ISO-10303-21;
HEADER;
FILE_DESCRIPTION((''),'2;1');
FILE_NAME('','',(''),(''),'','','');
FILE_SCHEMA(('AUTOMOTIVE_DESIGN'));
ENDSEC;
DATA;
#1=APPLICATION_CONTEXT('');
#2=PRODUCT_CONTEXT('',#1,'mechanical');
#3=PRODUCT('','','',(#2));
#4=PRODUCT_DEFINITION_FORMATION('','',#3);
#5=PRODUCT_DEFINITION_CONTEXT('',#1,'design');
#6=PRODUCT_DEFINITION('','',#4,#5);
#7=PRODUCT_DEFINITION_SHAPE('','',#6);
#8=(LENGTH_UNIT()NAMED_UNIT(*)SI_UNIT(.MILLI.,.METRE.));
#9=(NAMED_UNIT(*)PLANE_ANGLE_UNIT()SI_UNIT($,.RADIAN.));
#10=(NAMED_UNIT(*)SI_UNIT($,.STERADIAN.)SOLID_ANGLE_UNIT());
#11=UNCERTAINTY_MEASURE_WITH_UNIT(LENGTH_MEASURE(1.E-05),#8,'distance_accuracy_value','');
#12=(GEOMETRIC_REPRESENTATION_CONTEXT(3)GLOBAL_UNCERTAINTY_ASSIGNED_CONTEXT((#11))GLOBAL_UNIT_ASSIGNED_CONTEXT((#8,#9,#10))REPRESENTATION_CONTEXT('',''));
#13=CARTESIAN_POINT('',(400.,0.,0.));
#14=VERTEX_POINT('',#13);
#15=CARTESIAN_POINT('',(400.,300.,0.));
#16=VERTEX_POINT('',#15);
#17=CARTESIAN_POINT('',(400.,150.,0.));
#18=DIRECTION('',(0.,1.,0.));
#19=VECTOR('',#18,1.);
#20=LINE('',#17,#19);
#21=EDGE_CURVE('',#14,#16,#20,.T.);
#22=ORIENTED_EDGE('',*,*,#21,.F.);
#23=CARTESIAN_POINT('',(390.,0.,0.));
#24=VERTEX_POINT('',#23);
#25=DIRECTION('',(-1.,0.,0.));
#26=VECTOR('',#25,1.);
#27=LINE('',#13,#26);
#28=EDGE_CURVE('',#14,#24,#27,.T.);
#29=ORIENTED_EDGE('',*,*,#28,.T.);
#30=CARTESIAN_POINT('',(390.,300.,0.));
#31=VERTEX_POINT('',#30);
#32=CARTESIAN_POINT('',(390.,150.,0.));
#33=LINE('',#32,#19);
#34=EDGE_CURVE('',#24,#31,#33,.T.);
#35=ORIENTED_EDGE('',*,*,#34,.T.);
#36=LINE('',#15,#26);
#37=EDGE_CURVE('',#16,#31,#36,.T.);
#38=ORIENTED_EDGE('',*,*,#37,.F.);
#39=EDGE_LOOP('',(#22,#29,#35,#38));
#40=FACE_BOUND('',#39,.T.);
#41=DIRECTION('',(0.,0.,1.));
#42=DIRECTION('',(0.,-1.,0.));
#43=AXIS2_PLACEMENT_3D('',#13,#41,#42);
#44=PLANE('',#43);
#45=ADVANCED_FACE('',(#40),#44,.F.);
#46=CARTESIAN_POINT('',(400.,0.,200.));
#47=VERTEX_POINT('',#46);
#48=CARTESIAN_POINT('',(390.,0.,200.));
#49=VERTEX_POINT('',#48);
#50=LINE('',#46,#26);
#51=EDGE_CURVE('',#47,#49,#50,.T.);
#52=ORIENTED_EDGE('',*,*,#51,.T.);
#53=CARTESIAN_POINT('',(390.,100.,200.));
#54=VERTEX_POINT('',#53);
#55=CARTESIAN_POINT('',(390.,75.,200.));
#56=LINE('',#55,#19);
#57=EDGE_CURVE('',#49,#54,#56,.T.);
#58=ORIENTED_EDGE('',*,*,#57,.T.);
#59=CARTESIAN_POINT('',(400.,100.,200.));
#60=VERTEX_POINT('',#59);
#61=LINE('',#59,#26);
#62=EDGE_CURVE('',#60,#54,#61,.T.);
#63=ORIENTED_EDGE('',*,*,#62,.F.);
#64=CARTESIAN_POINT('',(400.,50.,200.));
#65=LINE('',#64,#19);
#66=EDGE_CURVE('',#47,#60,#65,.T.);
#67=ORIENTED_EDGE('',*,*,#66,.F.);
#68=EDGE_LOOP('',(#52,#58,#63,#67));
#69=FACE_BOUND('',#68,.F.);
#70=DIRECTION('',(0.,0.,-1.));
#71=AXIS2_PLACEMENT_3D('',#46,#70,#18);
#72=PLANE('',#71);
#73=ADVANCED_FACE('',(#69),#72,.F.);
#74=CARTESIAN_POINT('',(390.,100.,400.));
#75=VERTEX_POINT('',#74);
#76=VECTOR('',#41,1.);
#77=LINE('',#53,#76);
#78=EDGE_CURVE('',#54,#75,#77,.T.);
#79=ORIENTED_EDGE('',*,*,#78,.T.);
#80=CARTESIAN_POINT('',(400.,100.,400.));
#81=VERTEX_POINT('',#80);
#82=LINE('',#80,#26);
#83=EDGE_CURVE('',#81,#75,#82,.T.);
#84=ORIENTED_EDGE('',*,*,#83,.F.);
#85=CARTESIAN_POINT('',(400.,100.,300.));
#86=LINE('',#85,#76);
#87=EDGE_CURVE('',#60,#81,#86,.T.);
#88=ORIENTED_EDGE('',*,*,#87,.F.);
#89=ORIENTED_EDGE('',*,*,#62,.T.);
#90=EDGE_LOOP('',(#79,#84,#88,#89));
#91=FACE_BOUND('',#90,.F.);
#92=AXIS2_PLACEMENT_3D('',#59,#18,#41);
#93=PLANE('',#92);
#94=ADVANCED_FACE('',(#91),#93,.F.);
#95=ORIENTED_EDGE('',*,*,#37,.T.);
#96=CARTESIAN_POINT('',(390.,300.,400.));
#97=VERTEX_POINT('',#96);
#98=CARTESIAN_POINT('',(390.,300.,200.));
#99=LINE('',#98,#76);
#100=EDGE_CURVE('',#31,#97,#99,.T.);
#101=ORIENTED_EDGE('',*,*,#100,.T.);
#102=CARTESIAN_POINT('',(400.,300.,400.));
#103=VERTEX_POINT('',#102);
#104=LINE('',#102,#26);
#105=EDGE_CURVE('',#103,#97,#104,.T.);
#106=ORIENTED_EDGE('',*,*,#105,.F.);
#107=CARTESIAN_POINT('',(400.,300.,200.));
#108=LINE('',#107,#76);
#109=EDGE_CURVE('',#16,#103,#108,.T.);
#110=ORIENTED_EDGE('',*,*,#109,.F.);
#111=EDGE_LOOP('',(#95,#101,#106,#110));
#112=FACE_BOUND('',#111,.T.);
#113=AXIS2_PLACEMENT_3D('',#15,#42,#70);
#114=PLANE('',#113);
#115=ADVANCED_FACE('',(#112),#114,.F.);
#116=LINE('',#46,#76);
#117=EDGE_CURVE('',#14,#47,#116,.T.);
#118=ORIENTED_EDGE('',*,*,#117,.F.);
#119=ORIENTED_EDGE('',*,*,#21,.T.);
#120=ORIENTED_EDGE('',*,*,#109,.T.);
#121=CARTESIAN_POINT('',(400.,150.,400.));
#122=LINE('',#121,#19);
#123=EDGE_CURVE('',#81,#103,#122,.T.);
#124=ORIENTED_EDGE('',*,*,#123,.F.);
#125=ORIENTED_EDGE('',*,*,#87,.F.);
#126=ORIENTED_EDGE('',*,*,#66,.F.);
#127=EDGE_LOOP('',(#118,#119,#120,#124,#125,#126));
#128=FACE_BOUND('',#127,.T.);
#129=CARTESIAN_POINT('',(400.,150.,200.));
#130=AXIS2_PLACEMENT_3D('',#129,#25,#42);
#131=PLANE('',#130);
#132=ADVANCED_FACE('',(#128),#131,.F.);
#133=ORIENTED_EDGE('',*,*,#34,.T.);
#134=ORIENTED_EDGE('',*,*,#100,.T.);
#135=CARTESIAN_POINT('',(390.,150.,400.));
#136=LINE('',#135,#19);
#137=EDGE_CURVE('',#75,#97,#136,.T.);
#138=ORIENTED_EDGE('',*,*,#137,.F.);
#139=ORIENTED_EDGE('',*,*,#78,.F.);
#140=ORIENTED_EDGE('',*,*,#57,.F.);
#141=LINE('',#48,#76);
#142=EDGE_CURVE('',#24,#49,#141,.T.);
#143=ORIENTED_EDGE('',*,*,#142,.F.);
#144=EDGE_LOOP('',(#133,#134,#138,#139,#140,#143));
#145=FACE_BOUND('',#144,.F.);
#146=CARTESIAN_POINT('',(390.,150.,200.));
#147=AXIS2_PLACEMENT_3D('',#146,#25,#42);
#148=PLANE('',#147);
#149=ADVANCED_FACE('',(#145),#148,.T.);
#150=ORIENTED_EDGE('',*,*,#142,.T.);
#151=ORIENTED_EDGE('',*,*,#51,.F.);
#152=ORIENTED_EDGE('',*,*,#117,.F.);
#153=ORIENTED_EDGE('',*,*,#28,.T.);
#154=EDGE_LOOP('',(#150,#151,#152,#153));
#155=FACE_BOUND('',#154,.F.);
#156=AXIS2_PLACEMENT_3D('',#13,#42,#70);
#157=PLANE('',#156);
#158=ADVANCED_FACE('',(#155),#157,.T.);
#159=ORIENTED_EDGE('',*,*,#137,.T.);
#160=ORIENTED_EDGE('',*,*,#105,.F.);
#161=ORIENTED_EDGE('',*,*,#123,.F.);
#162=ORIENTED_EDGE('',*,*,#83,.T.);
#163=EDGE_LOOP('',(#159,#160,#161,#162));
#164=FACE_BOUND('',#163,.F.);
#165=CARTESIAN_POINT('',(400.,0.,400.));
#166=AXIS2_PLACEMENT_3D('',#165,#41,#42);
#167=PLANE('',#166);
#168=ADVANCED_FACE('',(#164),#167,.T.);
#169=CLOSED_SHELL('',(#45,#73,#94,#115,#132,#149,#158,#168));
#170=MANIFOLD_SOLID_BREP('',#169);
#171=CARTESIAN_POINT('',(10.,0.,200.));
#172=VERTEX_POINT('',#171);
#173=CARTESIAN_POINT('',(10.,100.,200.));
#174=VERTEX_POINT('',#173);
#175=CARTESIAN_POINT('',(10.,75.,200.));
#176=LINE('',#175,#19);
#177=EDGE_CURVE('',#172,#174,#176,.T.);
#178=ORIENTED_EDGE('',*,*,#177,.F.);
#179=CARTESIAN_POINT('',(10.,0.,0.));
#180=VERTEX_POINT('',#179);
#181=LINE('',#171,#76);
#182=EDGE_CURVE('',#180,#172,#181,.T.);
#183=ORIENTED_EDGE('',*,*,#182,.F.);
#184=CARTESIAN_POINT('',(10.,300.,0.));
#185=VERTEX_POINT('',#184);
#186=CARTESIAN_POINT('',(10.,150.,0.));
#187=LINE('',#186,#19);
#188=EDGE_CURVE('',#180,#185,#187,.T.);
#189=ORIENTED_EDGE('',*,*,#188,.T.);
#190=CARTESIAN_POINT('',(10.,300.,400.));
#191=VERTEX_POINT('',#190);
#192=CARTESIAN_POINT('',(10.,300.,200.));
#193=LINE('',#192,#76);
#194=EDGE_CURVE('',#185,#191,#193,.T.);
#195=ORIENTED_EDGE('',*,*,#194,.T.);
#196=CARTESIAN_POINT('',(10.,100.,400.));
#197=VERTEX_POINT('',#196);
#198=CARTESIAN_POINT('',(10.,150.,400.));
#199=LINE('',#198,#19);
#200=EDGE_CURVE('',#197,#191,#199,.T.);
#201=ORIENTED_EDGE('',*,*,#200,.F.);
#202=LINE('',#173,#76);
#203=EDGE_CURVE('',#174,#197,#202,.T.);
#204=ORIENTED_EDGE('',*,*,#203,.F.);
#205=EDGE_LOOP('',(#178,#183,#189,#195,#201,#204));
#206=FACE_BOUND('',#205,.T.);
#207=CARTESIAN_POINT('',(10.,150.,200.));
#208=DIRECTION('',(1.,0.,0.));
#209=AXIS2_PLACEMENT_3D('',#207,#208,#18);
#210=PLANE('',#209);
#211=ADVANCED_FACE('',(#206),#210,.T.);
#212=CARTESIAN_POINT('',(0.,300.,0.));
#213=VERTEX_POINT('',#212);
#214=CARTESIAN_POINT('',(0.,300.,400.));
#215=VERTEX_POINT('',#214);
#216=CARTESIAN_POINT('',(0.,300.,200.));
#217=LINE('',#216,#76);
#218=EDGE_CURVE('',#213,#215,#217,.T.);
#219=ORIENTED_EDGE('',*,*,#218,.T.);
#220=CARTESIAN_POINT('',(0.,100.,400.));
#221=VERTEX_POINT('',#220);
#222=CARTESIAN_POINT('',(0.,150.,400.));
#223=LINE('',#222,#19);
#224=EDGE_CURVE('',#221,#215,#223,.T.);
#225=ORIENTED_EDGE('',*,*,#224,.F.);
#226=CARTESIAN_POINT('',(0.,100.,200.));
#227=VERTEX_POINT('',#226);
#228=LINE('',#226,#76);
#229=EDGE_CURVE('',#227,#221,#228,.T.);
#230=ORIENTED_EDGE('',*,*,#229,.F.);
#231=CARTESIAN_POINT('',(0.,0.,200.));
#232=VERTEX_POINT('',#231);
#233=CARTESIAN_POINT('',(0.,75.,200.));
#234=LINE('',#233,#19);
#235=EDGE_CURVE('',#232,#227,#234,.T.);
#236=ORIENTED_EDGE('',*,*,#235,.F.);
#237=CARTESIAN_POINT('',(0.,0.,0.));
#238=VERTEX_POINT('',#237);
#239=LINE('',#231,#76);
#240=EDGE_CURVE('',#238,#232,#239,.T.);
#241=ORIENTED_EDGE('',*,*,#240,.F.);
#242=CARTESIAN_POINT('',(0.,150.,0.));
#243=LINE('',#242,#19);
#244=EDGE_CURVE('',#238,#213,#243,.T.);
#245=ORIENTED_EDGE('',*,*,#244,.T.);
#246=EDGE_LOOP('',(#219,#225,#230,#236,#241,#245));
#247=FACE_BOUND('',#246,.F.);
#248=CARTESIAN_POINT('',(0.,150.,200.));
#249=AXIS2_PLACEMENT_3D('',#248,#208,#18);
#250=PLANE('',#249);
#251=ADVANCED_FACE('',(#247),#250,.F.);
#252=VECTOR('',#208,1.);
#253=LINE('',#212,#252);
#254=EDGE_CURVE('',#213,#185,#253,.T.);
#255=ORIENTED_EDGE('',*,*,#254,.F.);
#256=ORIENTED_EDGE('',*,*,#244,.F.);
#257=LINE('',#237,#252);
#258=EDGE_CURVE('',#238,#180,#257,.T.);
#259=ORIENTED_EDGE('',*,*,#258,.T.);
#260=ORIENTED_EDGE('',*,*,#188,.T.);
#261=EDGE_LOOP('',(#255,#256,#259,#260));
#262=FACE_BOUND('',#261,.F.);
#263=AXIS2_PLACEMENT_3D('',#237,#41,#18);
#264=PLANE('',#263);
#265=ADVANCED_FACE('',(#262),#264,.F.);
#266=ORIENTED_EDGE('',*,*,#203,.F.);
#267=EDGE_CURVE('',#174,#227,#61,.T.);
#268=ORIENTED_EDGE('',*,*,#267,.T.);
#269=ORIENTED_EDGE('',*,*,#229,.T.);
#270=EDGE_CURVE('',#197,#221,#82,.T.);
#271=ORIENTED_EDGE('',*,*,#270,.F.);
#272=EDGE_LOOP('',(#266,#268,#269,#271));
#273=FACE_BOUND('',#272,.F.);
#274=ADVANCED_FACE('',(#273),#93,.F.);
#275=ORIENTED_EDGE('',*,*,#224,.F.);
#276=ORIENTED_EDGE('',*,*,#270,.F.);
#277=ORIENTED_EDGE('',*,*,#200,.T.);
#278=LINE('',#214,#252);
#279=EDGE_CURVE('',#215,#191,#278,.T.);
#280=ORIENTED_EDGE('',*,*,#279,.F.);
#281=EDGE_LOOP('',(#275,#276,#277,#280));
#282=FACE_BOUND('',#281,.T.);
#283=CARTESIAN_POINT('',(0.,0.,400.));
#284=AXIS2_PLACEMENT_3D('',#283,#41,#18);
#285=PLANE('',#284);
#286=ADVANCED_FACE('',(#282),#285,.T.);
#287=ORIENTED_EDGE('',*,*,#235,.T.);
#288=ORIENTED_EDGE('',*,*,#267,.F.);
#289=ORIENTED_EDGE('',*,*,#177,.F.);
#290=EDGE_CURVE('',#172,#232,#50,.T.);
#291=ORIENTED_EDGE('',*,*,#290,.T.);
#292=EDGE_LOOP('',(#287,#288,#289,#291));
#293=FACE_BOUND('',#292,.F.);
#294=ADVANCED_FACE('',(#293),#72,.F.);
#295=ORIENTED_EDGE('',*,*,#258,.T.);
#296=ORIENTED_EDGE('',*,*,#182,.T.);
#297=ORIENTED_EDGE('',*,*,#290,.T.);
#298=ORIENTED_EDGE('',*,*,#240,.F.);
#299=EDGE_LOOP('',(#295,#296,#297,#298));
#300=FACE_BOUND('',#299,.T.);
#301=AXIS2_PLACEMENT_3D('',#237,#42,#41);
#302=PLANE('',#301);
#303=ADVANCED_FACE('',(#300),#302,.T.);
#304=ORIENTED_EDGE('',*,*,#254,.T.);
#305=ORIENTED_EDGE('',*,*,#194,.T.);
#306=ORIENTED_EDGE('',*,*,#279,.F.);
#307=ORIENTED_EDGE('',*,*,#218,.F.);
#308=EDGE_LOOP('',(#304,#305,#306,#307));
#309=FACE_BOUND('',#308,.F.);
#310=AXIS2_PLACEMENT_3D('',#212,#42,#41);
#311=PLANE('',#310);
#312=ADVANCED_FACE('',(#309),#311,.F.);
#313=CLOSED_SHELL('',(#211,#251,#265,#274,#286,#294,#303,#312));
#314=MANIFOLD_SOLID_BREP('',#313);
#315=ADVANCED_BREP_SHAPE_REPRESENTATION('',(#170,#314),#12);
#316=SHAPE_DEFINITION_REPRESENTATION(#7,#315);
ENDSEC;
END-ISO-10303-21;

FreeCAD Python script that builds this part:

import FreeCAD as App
import Part
import Sketcher
from FreeCAD import Vector
Q = App.Units.Quantity

doc = App.newDocument("Part")
body = doc.addObject("PartDesign::Body", "Body")

sketch1 = body.newObject("Sketcher::SketchObject", "Sketch")
sketch1.AttachmentSupport = (doc.getObject("YZ_Plane"), [""])
sketch1.MapMode = "FlatFace"
sketch1.addGeometry([
    Part.LineSegment(Vector(0, 400, 0), Vector(0, 0, 0)),
    Part.LineSegment(Vector(0, 0, 0), Vector(300, 0, 0)),
    Part.LineSegment(Vector(300, 0, 0), Vector(300, 400, 0)),
    Part.LineSegment(Vector(300, 400, 0), Vector(0, 400, 0)),
], False)
sketch1.addConstraint([
    Sketcher.Constraint("Coincident", 0, 2, 1, 1),
    Sketcher.Constraint("Coincident", 1, 2, 2, 1),
    Sketcher.Constraint("Coincident", 2, 2, 3, 1),
    Sketcher.Constraint("Coincident", 3, 2, 0, 1),
    Sketcher.Constraint("Vertical", 0),
    Sketcher.Constraint("Horizontal", 1),
    Sketcher.Constraint("Vertical", 2),
    Sketcher.Constraint("Horizontal", 3),
    Sketcher.Constraint("Coincident", 0, 2, -1, 1),
    Sketcher.Constraint("DistanceX", 1, 1, 1, 2, Q("300 mm")),
    Sketcher.Constraint("DistanceY", 0, 2, 0, 1, Q("400 mm")),
])
pad1 = body.newObject("PartDesign::Pad", "Pad")
pad1.Profile = sketch1
pad1.Length = 10
body2 = doc.addObject("PartDesign::Body", "Body001")
doc.recompute()

mirroring = doc.addObject("Part::Mirroring", "Mirroring")
mirroring.Source = body
mirroring.Base = Vector(200, 0, 0)
mirroring.Normal = Vector(1, 0, 0)
body2.BaseFeature = mirroring
doc.recompute()
body3 = doc.addObject("PartDesign::Body", "Body002")

sketch2 = body3.newObject("Sketcher::SketchObject", "Sketch001")
sketch2.AttachmentSupport = (doc.getObject("YZ_Plane002"), [""])
sketch2.MapMode = "FlatFace"
sketch2.AttachmentOffset = App.Placement(Vector(0, 0, 400), App.Rotation())
sketch2.addGeometry([
    Part.LineSegment(Vector(0, 400, 0), Vector(0, 200, 0)),
    Part.LineSegment(Vector(0, 200, 0), Vector(100, 200, 0)),
    Part.LineSegment(Vector(100, 200, 0), Vector(100, 400, 0)),
    Part.LineSegment(Vector(100, 400, 0), Vector(0, 400, 0)),
], False)
sketch2.addConstraint([
    Sketcher.Constraint("Coincident", 0, 2, 1, 1),
    Sketcher.Constraint("Coincident", 1, 2, 2, 1),
    Sketcher.Constraint("Coincident", 2, 2, 3, 1),
    Sketcher.Constraint("Coincident", 3, 2, 0, 1),
    Sketcher.Constraint("Vertical", 0),
    Sketcher.Constraint("Horizontal", 1),
    Sketcher.Constraint("Vertical", 2),
    Sketcher.Constraint("Horizontal", 3),
    Sketcher.Constraint("PointOnObject", 0, 2, -2),
    Sketcher.Constraint("DistanceX", 1, 1, 1, 2, Q("100 mm")),
    Sketcher.Constraint("DistanceY", 0, 2, 0, 1, Q("200 mm")),
    Sketcher.Constraint("DistanceY", -1, 1, 0, 2, Q("200 mm")),
])
pad2 = body3.newObject("PartDesign::Pad", "Pad001")
pad2.Profile = sketch2
pad2.Length = 400.001
pad2.Reversed = True
doc.recompute()

body4 = doc.addObject("PartDesign::Body", "Body003")
body4.BaseFeature = body3
boolean = body.newObject("PartDesign::Boolean", "Boolean")
boolean.Type = "Cut"
boolean.addObjects([body4])
doc.recompute()

boolean2 = body2.newObject("PartDesign::Boolean", "Boolean001")
boolean2.Type = "Cut"
boolean2.addObjects([body3])
mirroring.Visibility = False

doc.recompute()
